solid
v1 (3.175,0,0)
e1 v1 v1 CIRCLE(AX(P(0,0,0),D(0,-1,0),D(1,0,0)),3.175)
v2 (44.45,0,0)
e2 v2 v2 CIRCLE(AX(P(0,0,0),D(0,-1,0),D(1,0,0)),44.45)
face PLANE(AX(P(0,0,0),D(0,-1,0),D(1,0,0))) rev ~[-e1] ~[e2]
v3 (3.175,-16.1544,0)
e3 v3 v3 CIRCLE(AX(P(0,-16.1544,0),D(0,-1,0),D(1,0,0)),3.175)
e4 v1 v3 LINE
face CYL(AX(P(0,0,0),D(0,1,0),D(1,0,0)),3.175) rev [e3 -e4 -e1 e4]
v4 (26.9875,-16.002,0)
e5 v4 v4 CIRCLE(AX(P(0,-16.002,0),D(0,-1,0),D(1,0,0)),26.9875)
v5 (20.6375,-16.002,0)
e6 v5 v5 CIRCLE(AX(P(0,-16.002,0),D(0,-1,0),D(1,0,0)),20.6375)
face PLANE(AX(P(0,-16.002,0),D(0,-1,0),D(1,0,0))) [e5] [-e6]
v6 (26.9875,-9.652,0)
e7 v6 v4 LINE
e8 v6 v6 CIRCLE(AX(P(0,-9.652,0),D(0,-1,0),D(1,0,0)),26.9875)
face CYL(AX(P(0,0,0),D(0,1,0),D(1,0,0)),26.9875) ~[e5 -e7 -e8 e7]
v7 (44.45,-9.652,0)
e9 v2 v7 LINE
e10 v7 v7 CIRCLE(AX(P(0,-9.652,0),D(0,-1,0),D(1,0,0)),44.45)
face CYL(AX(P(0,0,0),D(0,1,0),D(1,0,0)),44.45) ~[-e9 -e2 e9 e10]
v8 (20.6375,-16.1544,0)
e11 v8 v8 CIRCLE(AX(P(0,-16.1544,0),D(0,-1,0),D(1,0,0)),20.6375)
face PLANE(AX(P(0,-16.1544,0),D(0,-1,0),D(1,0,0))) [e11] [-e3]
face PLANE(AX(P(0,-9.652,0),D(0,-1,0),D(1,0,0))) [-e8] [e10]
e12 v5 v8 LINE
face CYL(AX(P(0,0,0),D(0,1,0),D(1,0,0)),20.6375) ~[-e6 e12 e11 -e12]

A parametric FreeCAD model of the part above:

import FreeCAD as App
import Part
import Sketcher
from FreeCAD import Vector
Q = App.Units.Quantity

doc = App.newDocument("Part")
body = doc.addObject("PartDesign::Body", "Body")

sketch1 = body.newObject("Sketcher::SketchObject", "Sketch")
sketch1.AttachmentSupport = (doc.getObject("XZ_Plane"), [""])
sketch1.MapMode = "FlatFace"
sketch1.addGeometry(Part.Circle(Vector(0, 0, 0), Vector(0, 0, 1), 20.6375), False)
sketch1.addGeometry(Part.Circle(Vector(0, 0, 0), Vector(0, 0, 1), 3.175), False)
sketch1.addConstraint(Sketcher.Constraint("Coincident", 0, 3, -1, 1))
sketch1.addConstraint(Sketcher.Constraint("Coincident", 1, 3, -1, 1))
sketch1.addConstraint(Sketcher.Constraint("Diameter", 1, Q("0.25 in")))
sketch1.addConstraint(Sketcher.Constraint("Diameter", 0, Q("1.625 in")))
pad1 = body.newObject("PartDesign::Pad", "Pad")
pad1.Profile = sketch1
pad1.Length = Q("0.636 in")

sketch2 = body.newObject("Sketcher::SketchObject", "Sketch001")
sketch2.AttachmentSupport = (doc.getObject("XZ_Plane"), [""])
sketch2.MapMode = "FlatFace"
sketch2.addGeometry(Part.Circle(Vector(0, 0, 0), Vector(0, 0, 1), 26.9875), False)
sketch2.addGeometry(Part.Circle(Vector(0, 0, 0), Vector(0, 0, 1), 20.6375), False)
sketch2.addConstraint(Sketcher.Constraint("Coincident", 0, 3, -1, 1))
sketch2.addConstraint(Sketcher.Constraint("Coincident", 1, 3, -1, 1))
sketch2.addConstraint(Sketcher.Constraint("Diameter", 0, Q("2.125 in")))
sketch2.addConstraint(Sketcher.Constraint("Diameter", 1, Q("1.625 in")))
pad2 = body.newObject("PartDesign::Pad", "Pad001")
pad2.Profile = sketch2
pad2.Length = Q("0.63 in")

sketch3 = body.newObject("Sketcher::SketchObject", "Sketch002")
sketch3.AttachmentSupport = (doc.getObject("XZ_Plane"), [""])
sketch3.MapMode = "FlatFace"
sketch3.addGeometry(Part.Circle(Vector(0, 0, 0), Vector(0, 0, 1), 44.45), False)
sketch3.addGeometry(Part.Circle(Vector(0, 0, 0), Vector(0, 0, 1), 26.9875), False)
sketch3.addConstraint(Sketcher.Constraint("Coincident", 0, 3, -1, 1))
sketch3.addConstraint(Sketcher.Constraint("Coincident", 1, 3, -1, 1))
sketch3.addConstraint(Sketcher.Constraint("Diameter", 0, Q("3.5 in")))
sketch3.addConstraint(Sketcher.Constraint("Diameter", 1, Q("2.125 in")))
pad3 = body.newObject("PartDesign::Pad", "Pad002")
pad3.Profile = sketch3
pad3.Length = Q("0.38 in")

doc.recompute()
